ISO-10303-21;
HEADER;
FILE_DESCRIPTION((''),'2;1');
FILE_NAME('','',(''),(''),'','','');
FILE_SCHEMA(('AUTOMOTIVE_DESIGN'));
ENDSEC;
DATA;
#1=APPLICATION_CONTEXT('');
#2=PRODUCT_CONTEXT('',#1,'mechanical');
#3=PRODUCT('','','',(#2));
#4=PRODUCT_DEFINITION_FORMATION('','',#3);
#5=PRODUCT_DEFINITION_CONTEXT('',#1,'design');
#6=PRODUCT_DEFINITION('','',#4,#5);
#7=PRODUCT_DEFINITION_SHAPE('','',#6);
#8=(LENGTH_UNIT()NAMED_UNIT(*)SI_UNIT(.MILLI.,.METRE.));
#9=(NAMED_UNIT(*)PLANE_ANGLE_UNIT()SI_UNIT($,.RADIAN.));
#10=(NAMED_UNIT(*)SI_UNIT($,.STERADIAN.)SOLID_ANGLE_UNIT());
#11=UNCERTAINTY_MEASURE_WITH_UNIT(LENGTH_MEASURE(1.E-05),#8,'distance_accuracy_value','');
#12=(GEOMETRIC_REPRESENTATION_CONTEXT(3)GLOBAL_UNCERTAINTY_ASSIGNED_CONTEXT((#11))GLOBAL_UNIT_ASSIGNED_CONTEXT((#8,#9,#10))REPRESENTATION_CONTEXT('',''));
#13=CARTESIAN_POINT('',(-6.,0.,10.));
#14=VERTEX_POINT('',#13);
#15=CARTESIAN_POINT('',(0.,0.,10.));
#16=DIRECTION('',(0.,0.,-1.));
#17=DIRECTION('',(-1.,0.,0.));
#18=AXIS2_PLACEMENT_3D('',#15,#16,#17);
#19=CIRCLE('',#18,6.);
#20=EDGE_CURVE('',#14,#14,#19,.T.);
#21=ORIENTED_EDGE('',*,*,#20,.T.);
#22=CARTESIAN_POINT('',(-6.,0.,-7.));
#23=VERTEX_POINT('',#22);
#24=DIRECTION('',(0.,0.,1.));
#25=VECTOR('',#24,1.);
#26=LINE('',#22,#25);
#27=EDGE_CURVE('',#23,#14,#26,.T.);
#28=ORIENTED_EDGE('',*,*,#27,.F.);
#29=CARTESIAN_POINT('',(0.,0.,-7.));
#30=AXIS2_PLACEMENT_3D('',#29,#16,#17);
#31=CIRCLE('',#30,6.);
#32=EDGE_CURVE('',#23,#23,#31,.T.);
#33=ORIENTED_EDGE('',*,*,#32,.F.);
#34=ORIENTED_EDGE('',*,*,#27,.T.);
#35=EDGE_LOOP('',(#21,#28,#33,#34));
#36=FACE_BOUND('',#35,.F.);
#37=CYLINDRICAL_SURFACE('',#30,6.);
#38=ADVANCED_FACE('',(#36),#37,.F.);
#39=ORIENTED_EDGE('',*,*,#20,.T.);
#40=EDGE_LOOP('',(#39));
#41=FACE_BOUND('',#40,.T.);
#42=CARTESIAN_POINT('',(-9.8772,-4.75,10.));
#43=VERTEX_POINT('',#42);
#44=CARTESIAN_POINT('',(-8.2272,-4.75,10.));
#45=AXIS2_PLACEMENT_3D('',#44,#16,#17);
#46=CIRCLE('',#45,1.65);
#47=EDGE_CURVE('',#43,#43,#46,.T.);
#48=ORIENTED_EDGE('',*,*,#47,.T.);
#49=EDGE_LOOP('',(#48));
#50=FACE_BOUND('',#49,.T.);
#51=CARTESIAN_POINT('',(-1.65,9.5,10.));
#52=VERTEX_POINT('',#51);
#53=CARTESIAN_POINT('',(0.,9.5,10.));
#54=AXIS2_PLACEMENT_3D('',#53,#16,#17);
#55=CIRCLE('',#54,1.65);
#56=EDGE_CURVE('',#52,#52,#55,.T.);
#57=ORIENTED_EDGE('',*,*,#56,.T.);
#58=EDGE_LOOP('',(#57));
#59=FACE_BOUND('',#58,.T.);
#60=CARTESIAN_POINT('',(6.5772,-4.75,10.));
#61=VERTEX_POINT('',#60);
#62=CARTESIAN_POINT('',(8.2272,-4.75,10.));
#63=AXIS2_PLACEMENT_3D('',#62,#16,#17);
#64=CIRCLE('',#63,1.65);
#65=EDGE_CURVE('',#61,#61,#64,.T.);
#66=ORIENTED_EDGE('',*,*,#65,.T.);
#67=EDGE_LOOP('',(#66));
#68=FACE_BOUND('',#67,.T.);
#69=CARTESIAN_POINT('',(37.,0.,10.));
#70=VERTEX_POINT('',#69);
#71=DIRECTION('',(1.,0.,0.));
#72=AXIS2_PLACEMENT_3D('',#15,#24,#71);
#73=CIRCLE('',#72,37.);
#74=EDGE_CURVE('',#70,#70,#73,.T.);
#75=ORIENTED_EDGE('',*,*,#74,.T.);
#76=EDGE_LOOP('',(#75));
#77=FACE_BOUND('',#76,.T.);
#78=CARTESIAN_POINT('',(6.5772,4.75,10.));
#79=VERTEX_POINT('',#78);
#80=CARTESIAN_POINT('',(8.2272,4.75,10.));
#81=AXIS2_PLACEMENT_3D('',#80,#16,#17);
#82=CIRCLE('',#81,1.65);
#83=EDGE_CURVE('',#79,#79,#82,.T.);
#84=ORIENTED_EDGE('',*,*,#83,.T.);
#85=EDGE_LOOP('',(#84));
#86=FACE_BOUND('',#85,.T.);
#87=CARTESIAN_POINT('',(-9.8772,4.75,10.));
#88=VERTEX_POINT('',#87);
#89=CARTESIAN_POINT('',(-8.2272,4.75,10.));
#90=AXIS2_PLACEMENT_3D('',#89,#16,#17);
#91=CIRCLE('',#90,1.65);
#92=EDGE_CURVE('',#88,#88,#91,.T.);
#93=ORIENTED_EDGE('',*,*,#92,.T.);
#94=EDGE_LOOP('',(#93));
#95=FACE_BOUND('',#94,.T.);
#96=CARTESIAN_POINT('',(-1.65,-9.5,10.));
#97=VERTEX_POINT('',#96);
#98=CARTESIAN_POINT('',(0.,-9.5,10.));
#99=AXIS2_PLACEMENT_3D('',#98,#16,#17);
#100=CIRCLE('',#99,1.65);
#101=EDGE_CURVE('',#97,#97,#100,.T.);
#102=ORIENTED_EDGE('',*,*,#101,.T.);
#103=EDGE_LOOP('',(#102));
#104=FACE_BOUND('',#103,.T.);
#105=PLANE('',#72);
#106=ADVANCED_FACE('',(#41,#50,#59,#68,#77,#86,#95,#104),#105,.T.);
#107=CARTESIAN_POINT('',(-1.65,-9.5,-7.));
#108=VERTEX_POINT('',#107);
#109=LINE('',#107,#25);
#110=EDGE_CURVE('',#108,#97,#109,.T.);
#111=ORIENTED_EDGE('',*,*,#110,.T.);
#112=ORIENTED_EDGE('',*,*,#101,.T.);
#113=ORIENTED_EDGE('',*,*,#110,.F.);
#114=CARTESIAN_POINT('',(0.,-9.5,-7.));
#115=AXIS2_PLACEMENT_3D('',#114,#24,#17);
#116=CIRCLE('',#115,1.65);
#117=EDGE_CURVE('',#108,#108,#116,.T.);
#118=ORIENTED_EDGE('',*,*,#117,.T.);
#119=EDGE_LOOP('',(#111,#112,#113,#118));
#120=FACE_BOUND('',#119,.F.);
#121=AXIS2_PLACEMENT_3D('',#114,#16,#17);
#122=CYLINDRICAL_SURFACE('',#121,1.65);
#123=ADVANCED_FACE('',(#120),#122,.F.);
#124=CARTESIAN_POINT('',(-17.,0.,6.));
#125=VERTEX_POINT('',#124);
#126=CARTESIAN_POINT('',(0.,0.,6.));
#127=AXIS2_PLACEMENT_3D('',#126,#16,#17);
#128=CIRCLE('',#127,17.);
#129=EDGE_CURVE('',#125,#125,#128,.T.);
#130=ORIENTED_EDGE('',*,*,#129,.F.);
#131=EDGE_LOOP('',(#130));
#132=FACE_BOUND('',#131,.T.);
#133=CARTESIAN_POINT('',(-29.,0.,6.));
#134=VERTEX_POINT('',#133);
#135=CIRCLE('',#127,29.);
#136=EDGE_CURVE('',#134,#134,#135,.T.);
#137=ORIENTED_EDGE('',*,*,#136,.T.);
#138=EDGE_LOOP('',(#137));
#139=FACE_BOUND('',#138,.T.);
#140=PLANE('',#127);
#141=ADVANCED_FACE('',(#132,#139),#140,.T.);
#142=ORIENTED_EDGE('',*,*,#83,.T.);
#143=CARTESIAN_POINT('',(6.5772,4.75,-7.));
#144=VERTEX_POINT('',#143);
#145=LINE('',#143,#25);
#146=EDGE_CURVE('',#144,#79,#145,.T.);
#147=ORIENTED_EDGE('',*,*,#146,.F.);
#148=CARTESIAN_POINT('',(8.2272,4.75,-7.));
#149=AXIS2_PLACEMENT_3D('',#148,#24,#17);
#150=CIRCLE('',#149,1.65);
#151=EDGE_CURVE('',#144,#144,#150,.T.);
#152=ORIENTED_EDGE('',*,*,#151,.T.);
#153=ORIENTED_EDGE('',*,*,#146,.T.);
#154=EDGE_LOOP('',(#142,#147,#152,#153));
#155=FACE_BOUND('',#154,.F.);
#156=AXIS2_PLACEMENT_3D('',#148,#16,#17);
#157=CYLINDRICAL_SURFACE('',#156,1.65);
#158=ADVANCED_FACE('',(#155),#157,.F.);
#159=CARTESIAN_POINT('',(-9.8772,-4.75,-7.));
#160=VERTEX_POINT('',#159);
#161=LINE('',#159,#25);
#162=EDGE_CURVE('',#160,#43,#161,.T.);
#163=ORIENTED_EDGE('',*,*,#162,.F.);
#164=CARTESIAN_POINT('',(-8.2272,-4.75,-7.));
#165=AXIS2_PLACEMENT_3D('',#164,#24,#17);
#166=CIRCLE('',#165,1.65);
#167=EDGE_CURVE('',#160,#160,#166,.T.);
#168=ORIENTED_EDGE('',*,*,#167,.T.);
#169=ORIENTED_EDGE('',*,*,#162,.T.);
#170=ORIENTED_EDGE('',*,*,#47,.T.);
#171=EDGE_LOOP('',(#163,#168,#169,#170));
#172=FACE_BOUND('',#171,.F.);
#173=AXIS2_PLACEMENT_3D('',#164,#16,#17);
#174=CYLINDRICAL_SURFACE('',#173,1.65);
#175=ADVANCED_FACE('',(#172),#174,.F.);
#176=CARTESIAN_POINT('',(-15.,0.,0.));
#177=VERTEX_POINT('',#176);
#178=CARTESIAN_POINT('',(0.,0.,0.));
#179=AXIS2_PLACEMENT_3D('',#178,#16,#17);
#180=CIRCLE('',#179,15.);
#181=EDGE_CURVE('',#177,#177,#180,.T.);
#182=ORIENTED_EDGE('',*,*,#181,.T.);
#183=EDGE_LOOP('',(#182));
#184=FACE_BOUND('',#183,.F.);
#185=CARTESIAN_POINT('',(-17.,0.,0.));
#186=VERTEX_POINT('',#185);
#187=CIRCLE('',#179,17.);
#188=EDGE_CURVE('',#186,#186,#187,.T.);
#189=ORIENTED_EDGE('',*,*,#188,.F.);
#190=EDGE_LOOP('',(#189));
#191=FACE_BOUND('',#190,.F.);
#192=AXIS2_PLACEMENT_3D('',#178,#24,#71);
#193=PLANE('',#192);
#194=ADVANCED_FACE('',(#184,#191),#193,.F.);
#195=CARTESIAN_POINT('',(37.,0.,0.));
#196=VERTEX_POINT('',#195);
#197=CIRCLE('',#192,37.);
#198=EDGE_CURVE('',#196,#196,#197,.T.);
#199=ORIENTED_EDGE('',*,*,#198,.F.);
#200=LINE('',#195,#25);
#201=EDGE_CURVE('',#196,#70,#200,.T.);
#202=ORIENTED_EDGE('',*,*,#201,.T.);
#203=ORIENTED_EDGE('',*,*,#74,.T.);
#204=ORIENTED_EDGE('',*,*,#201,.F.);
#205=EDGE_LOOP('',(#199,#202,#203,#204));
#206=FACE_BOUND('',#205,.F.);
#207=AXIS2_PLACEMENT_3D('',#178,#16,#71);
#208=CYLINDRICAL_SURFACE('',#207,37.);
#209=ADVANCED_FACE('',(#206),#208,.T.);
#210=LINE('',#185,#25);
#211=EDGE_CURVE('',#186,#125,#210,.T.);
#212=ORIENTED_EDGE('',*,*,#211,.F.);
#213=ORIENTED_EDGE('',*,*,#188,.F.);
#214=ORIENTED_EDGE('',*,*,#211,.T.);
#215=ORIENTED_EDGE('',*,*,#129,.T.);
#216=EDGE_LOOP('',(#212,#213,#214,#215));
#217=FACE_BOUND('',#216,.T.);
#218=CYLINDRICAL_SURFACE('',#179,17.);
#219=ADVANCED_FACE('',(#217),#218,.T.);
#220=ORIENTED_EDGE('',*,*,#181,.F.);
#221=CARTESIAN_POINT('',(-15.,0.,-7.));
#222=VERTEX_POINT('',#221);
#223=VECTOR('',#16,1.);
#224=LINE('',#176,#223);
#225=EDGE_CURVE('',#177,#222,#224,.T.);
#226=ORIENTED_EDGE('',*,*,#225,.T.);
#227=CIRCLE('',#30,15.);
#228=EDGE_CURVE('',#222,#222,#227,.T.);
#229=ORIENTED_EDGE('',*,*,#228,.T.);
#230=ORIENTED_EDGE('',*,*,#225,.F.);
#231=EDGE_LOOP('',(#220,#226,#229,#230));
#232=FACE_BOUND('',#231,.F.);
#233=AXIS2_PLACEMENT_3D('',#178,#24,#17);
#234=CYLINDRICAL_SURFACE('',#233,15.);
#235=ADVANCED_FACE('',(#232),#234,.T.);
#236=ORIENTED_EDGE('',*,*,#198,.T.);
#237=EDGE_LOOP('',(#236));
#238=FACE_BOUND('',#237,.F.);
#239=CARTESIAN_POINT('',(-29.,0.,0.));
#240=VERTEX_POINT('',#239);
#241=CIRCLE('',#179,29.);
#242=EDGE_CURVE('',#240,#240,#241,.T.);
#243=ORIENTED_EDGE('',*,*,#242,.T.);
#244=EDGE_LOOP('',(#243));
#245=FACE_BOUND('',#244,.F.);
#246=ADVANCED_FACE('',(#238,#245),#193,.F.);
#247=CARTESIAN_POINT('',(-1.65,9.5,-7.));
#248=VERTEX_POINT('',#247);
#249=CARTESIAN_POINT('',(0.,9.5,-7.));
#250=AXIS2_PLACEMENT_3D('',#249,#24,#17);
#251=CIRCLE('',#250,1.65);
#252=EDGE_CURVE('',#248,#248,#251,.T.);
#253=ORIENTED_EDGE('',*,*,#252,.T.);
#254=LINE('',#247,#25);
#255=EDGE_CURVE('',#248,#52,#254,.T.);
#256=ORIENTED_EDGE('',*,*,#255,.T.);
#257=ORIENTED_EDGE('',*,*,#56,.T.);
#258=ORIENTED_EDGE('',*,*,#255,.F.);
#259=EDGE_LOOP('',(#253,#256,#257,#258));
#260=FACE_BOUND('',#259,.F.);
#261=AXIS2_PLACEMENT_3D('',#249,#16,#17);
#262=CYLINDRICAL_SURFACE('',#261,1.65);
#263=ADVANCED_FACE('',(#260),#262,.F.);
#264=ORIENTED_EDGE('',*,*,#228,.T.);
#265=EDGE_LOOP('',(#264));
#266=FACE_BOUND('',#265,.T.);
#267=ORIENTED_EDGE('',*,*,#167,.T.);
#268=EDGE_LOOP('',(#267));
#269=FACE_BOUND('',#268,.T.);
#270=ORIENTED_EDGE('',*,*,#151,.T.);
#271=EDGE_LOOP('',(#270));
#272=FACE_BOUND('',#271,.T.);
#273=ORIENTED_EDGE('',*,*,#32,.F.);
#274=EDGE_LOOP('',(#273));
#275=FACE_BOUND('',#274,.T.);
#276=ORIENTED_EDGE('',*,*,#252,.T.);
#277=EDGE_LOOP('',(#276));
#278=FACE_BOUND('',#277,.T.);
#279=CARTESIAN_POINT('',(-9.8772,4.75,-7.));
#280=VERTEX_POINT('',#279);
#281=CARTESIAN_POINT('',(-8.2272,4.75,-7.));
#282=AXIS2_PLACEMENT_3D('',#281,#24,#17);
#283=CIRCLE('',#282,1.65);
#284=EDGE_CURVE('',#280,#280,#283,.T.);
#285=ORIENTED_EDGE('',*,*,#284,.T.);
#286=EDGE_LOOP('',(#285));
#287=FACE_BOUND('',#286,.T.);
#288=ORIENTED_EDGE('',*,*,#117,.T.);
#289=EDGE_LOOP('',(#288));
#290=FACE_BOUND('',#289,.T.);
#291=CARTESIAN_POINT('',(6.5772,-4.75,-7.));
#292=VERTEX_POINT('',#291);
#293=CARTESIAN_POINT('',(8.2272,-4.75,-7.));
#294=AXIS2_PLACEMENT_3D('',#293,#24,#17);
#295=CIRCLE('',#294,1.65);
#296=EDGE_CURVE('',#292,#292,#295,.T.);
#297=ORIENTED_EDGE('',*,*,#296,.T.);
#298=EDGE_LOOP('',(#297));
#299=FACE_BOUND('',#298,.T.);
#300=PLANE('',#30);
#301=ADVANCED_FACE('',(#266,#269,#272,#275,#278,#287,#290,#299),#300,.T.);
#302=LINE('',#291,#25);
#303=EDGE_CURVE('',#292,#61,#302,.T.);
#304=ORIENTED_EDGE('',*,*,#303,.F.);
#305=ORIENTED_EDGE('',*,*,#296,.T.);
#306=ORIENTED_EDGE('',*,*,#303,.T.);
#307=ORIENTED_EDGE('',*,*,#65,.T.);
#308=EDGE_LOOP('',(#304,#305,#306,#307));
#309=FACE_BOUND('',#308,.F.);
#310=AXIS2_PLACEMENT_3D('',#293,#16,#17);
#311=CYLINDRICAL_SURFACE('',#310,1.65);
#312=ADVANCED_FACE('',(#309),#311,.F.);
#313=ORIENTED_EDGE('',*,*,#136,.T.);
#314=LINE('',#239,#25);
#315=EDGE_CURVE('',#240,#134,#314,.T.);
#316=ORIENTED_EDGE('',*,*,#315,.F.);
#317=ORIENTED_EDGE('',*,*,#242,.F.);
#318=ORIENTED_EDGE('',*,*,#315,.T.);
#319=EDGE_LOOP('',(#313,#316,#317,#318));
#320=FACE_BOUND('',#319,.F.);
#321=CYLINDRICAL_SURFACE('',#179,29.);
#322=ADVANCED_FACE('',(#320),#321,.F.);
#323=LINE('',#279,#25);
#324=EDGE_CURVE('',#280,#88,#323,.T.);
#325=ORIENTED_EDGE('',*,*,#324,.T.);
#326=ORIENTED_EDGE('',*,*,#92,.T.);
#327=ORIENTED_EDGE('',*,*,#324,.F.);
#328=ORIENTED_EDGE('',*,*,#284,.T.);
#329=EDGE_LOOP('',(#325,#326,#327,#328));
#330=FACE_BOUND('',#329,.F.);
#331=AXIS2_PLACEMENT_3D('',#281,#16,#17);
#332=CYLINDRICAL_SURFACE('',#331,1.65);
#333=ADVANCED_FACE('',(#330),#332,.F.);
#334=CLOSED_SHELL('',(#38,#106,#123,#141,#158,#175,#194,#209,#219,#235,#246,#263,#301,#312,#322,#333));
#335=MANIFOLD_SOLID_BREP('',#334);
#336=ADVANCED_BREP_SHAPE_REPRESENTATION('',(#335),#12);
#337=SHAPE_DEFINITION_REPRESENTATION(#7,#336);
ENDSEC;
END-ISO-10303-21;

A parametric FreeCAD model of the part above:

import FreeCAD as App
import Part
import Sketcher
Q = App.Units.Quantity

doc = App.newDocument("Part")
body = doc.addObject("PartDesign::Body", "Body")

# Sketch on XY plane
sketch1 = body.newObject("Sketcher::SketchObject", "Sketch")
sketch1.AttachmentSupport = (doc.getObject("XY_Plane"), [""])
sketch1.MapMode = "FlatFace"
sketch1.addGeometry(Part.Circle(App.Vector(0, 0, 0), App.Vector(0, 0, 1), 37), False)
sketch1.addConstraint(Sketcher.Constraint("Coincident", 0, 3, -1, 1))
sketch1.addConstraint(Sketcher.Constraint("Diameter", 0, Q("74 mm")))
pad1 = body.newObject("PartDesign::Pad", "Pad")
pad1.Profile = sketch1
pad1.Length = 10

# Sketch on XY plane
sketch2 = body.newObject("Sketcher::SketchObject", "Sketch001")
sketch2.AttachmentSupport = (doc.getObject("XY_Plane"), [""])
sketch2.MapMode = "FlatFace"
sketch2.addGeometry(Part.Circle(App.Vector(0, 0, 0), App.Vector(0, 0, 1), 29), False)
sketch2.addGeometry(Part.Circle(App.Vector(0, 0, 0), App.Vector(0, 0, 1), 17), False)
sketch2.addConstraint(Sketcher.Constraint("Coincident", 0, 3, -1, 1))
sketch2.addConstraint(Sketcher.Constraint("Coincident", 1, 3, -1, 1))
sketch2.addConstraint(Sketcher.Constraint("Diameter", 1, Q("34 mm")))
sketch2.addConstraint(Sketcher.Constraint("Diameter", 0, Q("58 mm")))
pocket1 = body.newObject("PartDesign::Pocket", "Pocket")
pocket1.Profile = sketch2
pocket1.Length = 6
pocket1.Reversed = True

# Sketch on XY plane
sketch3 = body.newObject("Sketcher::SketchObject", "Sketch002")
sketch3.AttachmentSupport = (doc.getObject("XY_Plane"), [""])
sketch3.MapMode = "FlatFace"
sketch3.addGeometry(Part.Circle(App.Vector(0, 0, 0), App.Vector(0, 0, 1), 15), False)
sketch3.addConstraint(Sketcher.Constraint("Coincident", 0, 3, -1, 1))
sketch3.addConstraint(Sketcher.Constraint("Diameter", 0, Q("30 mm")))
pad2 = body.newObject("PartDesign::Pad", "Pad001")
pad2.Profile = sketch3
pad2.Length = 7
pad2.Reversed = True

# Sketch on XY plane
sketch4 = body.newObject("Sketcher::SketchObject", "Sketch003")
sketch4.AttachmentSupport = (doc.getObject("XY_Plane"), [""])
sketch4.MapMode = "FlatFace"
sketch4.AttachmentOffset = App.Placement(App.Vector(0, 0, -7), App.Rotation())
sketch4.addGeometry(Part.Circle(App.Vector(-8.2, 4.8, 0), App.Vector(0, 0, 1), 1.6), False)
sketch4.addGeometry(Part.Circle(App.Vector(-8.2, -4.8, 0), App.Vector(0, 0, 1), 1.6), False)
sketch4.addGeometry(Part.Circle(App.Vector(0, 9.5, 0), App.Vector(0, 0, 1), 1.6), False)
sketch4.addGeometry(Part.Circle(App.Vector(0, -9.5, 0), App.Vector(0, 0, 1), 1.6), False)
sketch4.addGeometry(Part.Circle(App.Vector(8.2, 4.8, 0), App.Vector(0, 0, 1), 1.6), False)
sketch4.addGeometry(Part.Circle(App.Vector(8.2, -4.8, 0), App.Vector(0, 0, 1), 1.6), False)
sketch4.addGeometry(Part.Circle(App.Vector(0, 0, 0), App.Vector(0, 0, 1), 6), False)
sketch4.addConstraint(Sketcher.Constraint("Coincident", 6, 3, -1, 1))
sketch4.addConstraint(Sketcher.Constraint("Equal", 0, 1))
sketch4.addConstraint(Sketcher.Constraint("Equal", 1, 2))
sketch4.addConstraint(Sketcher.Constraint("Equal", 2, 3))
sketch4.addConstraint(Sketcher.Constraint("Equal", 3, 4))
sketch4.addConstraint(Sketcher.Constraint("Equal", 4, 5))
sketch4.addConstraint(Sketcher.Constraint("Symmetric", 2, 3, 3, 3, -1, 1))
sketch4.addConstraint(Sketcher.Constraint("Symmetric", 1, 3, 4, 3, -1, 1))
sketch4.addConstraint(Sketcher.Constraint("Symmetric", 0, 3, 5, 3, -1, 1))
sketch4.addConstraint(Sketcher.Constraint("Symmetric", 0, 3, 4, 3, -2))
sketch4.addConstraint(Sketcher.Constraint("PointOnObject", 2, 3, -2))
sketch4.addConstraint(Sketcher.Constraint("Diameter", 6, Q("12 mm")))
sketch4.addConstraint(Sketcher.Constraint("Diameter", 0, Q("3.3 mm")))
sketch4.addConstraint(Sketcher.Constraint("DistanceY", 3, 3, 2, 3, Q("19 mm")))
sketch4.addConstraint(Sketcher.Constraint("DistanceY", 1, 3, 0, 3, Q("9.5 mm")))
sketch4.addConstraint(Sketcher.Constraint("DistanceX", 0, 3, -1, 1, Q("8.2272 mm")))
pocket2 = body.newObject("PartDesign::Pocket", "Pocket001")
pocket2.Profile = sketch4
pocket2.Type = "ThroughAll"
pocket2.Reversed = True

doc.recompute()
